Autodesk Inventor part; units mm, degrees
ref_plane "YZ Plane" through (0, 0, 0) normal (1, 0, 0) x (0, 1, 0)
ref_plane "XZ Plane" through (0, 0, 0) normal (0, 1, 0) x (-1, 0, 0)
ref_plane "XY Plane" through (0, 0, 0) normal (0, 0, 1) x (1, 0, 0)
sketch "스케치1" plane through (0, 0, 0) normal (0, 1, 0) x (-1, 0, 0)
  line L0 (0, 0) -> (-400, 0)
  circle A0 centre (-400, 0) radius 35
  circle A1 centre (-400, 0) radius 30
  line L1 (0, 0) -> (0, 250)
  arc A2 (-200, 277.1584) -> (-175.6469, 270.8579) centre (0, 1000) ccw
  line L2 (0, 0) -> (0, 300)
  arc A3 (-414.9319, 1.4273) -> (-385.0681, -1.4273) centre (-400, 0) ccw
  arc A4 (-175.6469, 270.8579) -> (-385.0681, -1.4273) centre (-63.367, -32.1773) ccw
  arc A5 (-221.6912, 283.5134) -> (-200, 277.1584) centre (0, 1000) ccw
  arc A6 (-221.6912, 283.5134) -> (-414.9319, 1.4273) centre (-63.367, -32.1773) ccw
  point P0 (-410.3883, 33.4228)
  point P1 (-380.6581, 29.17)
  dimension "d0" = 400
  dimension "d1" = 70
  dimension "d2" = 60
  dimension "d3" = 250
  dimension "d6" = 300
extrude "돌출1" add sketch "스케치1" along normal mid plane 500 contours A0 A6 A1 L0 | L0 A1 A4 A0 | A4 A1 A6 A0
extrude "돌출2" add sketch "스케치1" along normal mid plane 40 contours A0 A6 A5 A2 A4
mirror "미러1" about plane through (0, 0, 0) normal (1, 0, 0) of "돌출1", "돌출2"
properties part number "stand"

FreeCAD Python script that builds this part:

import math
import FreeCAD as App
import Part
import Sketcher

doc = App.newDocument("Part")
body = doc.addObject("PartDesign::Body", "Body")
body.AllowCompound = True

# Sketch on XZ plane
sketch1 = doc.addObject("Sketcher::SketchObject", "Sketch")
body.addObject(sketch1)
sketch1.AttachmentSupport = (doc.XZ_Plane, [""])
sketch1.MapMode = "FlatFace"
sketch1.addGeometry(Part.Circle(App.Vector(400, 0, 0), App.Vector(0, 0, 1), 35), False)
sketch1.addGeometry(Part.Circle(App.Vector(400, 0, 0), App.Vector(0, 0, 1), 30), False)
sketch1.addConstraint(Sketcher.Constraint("Coincident", 1, 3, 0, 3))
sketch1.addConstraint(Sketcher.Constraint("PointOnObject", 0, 3, -1))
sketch1.addConstraint(Sketcher.Constraint("Diameter", 0, 70.0))
sketch1.addConstraint(Sketcher.Constraint("Diameter", 1, 60.0))
sketch1.addConstraint(Sketcher.Constraint("DistanceX", -1, 1, 0, 3, 400.0))
pad1 = doc.addObject("PartDesign::Pad", "Pad")
body.addObject(pad1)
pad1.Profile = sketch1
pad1.Length = 500
pad1.Midplane = True

# Sketch on XZ plane
sketch2 = doc.addObject("Sketcher::SketchObject", "Sketch001")
body.addObject(sketch2)
sketch2.AttachmentSupport = (doc.XZ_Plane, [""])
sketch2.MapMode = "FlatFace"
sketch2.addGeometry(Part.ArcOfCircle(Part.Circle(App.Vector(400, 0, 0), App.Vector(0, 0, 1), 35), math.radians(72.733985), math.radians(123.547306)), False)
sketch2.addGeometry(Part.ArcOfCircle(Part.Circle(App.Vector(63.367, -32.1773, 0), App.Vector(0, 0, 1), 323.167307), math.radians(10.942951), math.radians(69.669441)), False)
sketch2.addGeometry(Part.ArcOfCircle(Part.Circle(App.Vector(-0.03481, 1000.130043, 0), App.Vector(0, 0, 1), 750.134603), math.radians(-76.455515), math.radians(-74.534076)), False)
sketch2.addGeometry(Part.ArcOfCircle(Part.Circle(App.Vector(0.048627, 999.838542, 0), App.Vector(0, 0, 1), 749.831407), math.radians(-74.534281), math.radians(-72.807088)), False)
sketch2.addGeometry(Part.ArcOfCircle(Part.Circle(App.Vector(63.367, -32.1773, 0), App.Vector(0, 0, 1), 353.16734), math.radians(10.704741), math.radians(63.365465)), False)
sketch2.addConstraint(Sketcher.Constraint("Coincident", 0, 2, 1, 1))
sketch2.addConstraint(Sketcher.Constraint("Coincident", 1, 2, 2, 1))
sketch2.addConstraint(Sketcher.Constraint("Coincident", 2, 2, 3, 1))
sketch2.addConstraint(Sketcher.Constraint("Coincident", 3, 2, 4, 2))
sketch2.addConstraint(Sketcher.Constraint("Coincident", 4, 1, 0, 1))
sketch2.addConstraint(Sketcher.Constraint("Coincident", 4, 3, 1, 3))
sketch2.addConstraint(Sketcher.Constraint("PointOnObject", 0, 3, -1))
sketch2.addConstraint(Sketcher.Constraint("Radius", 0, 35.0))
sketch2.addConstraint(Sketcher.Constraint("DistanceX", -1, 1, 0, 3, 400.0))
sketch2.addConstraint(Sketcher.Constraint("DistanceX", -1, 1, 2, 2, 200.0))
sketch2.addConstraint(Sketcher.Constraint("Radius", 1, 323.1673))
sketch2.addConstraint(Sketcher.Constraint("Radius", 2, 750.1346))
sketch2.addConstraint(Sketcher.Constraint("Radius", 3, 749.8314))
sketch2.addConstraint(Sketcher.Constraint("Radius", 4, 353.1673))
sketch2.addConstraint(Sketcher.Constraint("DistanceY", -1, 1, 2, 3, 1000.13))
sketch2.addConstraint(Sketcher.Constraint("DistanceY", -1, 1, 0, 2, 29.17))
sketch2.addConstraint(Sketcher.Constraint("DistanceX", 1, 3, 1, 2, 112.28))
sketch2.addConstraint(Sketcher.Constraint("DistanceX", -1, 1, 1, 3, 63.367))
sketch2.addConstraint(Sketcher.Constraint("DistanceX", -1, 1, 3, 3, 0.0486))
pad2 = doc.addObject("PartDesign::Pad", "Pad001")
body.addObject(pad2)
pad2.Profile = sketch2
pad2.Length = 40
pad2.Midplane = True
doc.recompute()

mirrored = doc.addObject("PartDesign::Mirrored", "Mirrored")
body.addObject(mirrored)
mirrored.Originals = [pad1, pad2]
mirrored.MirrorPlane = (doc.YZ_Plane, [""])
body.Tip = mirrored

doc.recompute()
